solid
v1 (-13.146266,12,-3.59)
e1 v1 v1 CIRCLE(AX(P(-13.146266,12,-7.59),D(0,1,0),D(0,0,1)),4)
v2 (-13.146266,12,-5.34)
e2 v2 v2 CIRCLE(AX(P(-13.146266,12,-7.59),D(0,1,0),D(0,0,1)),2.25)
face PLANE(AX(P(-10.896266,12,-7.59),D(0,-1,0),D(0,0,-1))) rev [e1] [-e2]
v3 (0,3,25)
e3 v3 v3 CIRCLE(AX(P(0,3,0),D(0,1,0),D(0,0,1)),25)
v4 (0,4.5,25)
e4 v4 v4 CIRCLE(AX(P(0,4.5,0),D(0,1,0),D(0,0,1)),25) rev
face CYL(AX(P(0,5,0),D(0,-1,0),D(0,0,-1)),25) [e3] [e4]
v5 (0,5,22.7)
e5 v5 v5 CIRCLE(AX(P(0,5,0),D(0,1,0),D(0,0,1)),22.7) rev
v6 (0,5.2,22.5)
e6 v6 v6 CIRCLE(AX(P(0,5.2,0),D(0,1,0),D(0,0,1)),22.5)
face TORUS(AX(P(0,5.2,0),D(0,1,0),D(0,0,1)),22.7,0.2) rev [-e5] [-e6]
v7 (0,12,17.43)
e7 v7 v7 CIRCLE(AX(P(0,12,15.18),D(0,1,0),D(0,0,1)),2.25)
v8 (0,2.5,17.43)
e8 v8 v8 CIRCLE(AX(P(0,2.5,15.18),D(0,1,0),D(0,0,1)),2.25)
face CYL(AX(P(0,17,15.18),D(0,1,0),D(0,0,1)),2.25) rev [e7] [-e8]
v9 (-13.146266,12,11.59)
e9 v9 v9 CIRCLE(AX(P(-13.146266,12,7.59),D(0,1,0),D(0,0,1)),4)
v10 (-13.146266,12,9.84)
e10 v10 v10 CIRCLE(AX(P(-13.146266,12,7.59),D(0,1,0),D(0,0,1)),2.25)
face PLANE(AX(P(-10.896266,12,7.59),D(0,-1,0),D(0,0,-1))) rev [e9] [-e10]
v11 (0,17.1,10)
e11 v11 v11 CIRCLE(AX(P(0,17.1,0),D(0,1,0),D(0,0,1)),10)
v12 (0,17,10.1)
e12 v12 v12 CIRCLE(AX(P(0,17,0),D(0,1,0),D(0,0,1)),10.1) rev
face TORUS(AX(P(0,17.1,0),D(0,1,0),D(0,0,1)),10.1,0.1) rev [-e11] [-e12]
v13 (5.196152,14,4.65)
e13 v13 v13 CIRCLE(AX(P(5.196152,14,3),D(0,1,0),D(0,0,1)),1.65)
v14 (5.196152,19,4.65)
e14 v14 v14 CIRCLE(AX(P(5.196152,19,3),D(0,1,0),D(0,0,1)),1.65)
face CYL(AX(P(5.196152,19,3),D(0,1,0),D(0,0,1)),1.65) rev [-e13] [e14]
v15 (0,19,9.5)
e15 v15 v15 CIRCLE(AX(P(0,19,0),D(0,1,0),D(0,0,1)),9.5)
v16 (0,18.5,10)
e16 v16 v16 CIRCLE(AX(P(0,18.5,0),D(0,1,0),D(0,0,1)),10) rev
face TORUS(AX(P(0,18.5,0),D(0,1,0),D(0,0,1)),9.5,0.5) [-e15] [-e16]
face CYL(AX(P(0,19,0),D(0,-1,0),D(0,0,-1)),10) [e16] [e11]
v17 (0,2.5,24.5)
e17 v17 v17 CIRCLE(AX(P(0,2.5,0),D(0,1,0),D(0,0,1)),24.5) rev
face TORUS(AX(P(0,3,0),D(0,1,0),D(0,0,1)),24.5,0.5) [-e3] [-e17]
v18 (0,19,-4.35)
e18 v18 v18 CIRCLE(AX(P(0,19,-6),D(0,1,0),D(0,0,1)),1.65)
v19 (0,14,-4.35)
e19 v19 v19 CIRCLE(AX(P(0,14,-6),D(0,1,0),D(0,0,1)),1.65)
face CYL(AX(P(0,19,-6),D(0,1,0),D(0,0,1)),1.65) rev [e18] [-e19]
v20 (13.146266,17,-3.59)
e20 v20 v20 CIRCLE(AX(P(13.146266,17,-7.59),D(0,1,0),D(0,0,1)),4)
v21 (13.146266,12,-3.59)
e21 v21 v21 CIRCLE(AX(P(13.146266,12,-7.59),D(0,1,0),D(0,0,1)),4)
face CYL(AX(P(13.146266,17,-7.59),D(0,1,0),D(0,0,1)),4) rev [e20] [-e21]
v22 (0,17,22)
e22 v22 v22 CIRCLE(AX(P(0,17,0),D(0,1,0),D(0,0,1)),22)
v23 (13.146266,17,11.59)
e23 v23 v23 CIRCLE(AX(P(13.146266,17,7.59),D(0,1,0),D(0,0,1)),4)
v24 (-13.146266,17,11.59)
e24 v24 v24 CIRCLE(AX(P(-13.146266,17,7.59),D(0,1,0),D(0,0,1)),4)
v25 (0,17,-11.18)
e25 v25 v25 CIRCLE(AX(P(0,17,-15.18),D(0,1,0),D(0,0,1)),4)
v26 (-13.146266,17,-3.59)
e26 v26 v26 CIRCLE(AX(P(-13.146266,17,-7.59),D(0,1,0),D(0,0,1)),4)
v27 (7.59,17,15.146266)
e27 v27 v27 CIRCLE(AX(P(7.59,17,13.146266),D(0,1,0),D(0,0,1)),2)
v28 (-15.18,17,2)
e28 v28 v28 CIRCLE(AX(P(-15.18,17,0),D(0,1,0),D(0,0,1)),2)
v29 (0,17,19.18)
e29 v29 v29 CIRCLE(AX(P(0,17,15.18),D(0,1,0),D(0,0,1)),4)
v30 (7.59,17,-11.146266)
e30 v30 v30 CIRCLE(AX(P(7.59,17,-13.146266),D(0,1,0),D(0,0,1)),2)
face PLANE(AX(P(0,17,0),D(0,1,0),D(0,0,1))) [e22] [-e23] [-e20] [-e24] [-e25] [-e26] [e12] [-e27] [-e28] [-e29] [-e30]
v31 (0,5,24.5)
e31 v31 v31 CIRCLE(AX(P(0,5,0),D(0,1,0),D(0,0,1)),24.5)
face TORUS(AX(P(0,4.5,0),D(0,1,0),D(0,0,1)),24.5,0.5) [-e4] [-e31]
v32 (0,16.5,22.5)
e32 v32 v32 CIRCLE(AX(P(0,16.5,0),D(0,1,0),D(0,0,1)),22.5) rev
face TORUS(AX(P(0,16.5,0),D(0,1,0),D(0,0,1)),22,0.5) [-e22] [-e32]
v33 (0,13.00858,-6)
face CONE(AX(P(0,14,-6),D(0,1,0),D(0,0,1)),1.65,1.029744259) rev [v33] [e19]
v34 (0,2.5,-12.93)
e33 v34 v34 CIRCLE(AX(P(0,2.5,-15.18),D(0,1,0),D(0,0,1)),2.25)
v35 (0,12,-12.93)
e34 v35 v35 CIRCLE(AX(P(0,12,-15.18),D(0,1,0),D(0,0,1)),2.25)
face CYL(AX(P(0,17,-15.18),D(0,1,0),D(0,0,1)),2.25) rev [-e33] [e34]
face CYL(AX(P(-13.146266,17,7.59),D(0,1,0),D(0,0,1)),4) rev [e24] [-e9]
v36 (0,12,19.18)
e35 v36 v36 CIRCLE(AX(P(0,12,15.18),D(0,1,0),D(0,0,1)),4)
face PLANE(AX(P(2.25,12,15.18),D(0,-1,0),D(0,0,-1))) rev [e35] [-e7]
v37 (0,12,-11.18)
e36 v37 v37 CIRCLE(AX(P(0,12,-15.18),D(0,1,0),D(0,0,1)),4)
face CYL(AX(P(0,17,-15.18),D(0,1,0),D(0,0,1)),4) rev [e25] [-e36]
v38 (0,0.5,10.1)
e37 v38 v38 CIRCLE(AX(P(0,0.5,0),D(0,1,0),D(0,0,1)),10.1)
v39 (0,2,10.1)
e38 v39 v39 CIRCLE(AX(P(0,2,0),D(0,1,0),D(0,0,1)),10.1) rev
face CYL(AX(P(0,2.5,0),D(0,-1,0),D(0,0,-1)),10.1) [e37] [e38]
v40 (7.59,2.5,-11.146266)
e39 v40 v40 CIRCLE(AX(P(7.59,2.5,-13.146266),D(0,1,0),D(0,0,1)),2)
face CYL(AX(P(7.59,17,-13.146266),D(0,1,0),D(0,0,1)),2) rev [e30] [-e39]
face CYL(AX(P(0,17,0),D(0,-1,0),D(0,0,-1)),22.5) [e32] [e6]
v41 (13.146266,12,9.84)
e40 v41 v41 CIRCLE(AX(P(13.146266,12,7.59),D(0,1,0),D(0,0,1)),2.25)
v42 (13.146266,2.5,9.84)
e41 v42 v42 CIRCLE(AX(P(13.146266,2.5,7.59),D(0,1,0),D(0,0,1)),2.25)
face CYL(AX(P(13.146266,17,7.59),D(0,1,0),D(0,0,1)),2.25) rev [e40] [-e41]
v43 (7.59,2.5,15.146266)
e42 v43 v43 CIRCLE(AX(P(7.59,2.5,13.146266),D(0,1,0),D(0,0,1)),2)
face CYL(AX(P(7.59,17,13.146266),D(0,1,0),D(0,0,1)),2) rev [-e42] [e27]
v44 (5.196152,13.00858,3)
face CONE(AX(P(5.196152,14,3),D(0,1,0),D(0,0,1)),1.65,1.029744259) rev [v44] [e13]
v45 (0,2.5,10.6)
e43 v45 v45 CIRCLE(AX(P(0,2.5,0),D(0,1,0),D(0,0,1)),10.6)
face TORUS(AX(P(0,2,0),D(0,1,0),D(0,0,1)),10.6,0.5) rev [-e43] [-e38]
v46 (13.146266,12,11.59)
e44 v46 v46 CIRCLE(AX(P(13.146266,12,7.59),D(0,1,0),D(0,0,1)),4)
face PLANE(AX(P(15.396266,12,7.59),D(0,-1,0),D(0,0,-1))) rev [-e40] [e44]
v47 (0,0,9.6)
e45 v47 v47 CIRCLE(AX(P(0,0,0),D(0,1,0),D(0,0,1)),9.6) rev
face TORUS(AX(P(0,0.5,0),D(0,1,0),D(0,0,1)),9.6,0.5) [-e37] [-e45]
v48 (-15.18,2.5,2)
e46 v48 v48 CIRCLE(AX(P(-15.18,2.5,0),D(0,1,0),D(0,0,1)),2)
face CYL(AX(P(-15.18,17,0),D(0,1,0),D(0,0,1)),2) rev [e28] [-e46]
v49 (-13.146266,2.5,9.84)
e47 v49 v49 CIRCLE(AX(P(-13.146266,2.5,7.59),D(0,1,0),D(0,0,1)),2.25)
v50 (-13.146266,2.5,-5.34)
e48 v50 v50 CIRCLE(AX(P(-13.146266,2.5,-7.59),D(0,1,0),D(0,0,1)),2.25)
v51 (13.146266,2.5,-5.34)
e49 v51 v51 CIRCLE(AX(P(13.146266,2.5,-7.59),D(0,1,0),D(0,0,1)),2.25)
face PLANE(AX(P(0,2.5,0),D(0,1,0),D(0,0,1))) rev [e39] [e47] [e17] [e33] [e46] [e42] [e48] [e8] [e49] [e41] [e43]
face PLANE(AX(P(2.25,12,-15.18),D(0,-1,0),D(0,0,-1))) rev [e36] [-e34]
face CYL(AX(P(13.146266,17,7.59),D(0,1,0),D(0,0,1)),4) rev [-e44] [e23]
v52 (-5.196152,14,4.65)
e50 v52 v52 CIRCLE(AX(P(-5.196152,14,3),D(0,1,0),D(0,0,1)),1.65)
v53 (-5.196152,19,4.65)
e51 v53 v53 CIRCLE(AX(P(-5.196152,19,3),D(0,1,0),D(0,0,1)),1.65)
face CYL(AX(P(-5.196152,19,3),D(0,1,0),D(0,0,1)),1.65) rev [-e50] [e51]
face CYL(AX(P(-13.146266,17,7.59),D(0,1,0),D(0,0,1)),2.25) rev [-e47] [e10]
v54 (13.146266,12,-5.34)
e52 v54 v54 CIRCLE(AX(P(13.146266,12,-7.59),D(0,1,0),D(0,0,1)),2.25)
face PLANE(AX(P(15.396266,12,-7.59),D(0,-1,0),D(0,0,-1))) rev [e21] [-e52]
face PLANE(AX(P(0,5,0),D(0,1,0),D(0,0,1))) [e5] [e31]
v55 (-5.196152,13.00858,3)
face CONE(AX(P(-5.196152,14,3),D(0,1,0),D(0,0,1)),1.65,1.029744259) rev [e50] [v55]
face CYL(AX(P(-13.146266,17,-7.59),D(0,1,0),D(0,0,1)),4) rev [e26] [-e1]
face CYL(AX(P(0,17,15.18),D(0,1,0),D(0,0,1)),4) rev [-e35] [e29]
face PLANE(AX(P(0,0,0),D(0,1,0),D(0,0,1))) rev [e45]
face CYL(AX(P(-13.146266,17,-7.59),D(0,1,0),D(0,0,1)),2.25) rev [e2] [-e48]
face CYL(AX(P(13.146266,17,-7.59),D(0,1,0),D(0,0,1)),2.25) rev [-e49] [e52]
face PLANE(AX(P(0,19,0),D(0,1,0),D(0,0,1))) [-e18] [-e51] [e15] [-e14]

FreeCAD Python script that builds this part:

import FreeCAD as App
import Part
import Sketcher
Q = App.Units.Quantity


def edges_at(feature, points):
    """Names of the edges that pass closest to the given points."""
    edges = feature.Shape.Edges
    near = lambda p: min(range(len(edges)), key=lambda i: edges[i].distToShape(Part.Vertex(*p))[0])
    return sorted({f"Edge{near(p) + 1}" for p in points})

doc = App.newDocument("Part")
body = doc.addObject("PartDesign::Body", "Body")

sketch1 = body.newObject("Sketcher::SketchObject", "Sketch")
sketch1.AttachmentSupport = (doc.getObject("XZ_Plane"), [""])
sketch1.MapMode = "FlatFace"
sketch1.addGeometry(Part.Circle(App.Vector(0, 0, 0), App.Vector(0, 0, 1), 10.1), False)
sketch1.addConstraint(Sketcher.Constraint("Coincident", 0, 3, -1, 1))
sketch1.addConstraint(Sketcher.Constraint("Diameter", 0, 20.2))
pad1 = body.newObject("PartDesign::Pad", "Pad")
pad1.Profile = sketch1
pad1.Length = 2.5
pad1.Reversed = True

sketch2 = body.newObject("Sketcher::SketchObject", "Sketch001")
sketch2.AttachmentSupport = (doc.getObject("XZ_Plane"), [""])
sketch2.MapMode = "FlatFace"
sketch2.AttachmentOffset = App.Placement(App.Vector(0, 0, -2.5), App.Rotation())
sketch2.addGeometry(Part.Circle(App.Vector(0, 0, 0), App.Vector(0, 0, 1), 25), False)
sketch2.addConstraint(Sketcher.Constraint("Coincident", 0, 3, -1, 1))
sketch2.addConstraint(Sketcher.Constraint("Diameter", 0, 50.0))
pad2 = body.newObject("PartDesign::Pad", "Pad001")
pad2.Profile = sketch2
pad2.Length = 2.5
pad2.Reversed = True

sketch3 = body.newObject("Sketcher::SketchObject", "Sketch002")
sketch3.AttachmentSupport = (doc.getObject("XZ_Plane"), [""])
sketch3.MapMode = "FlatFace"
sketch3.AttachmentOffset = App.Placement(App.Vector(0, 0, -5), App.Rotation())
sketch3.addGeometry(Part.Circle(App.Vector(0, 0, 0), App.Vector(0, 0, 1), 22.5), False)
sketch3.addConstraint(Sketcher.Constraint("Coincident", 0, 3, -1, 1))
sketch3.addConstraint(Sketcher.Constraint("Diameter", 0, 45.0))
pad3 = body.newObject("PartDesign::Pad", "Pad002")
pad3.Profile = sketch3
pad3.Length = 12
pad3.Reversed = True

sketch4 = body.newObject("Sketcher::SketchObject", "Sketch003")
sketch4.AttachmentSupport = (doc.getObject("XZ_Plane"), [""])
sketch4.MapMode = "FlatFace"
sketch4.AttachmentOffset = App.Placement(App.Vector(0, 0, -17), App.Rotation())
sketch4.addGeometry(Part.Circle(App.Vector(0, 0, 0), App.Vector(0, 0, 1), 10), False)
sketch4.addConstraint(Sketcher.Constraint("Coincident", 0, 3, -1, 1))
sketch4.addConstraint(Sketcher.Constraint("Diameter", 0, 20.0))
pad4 = body.newObject("PartDesign::Pad", "Pad003")
pad4.Profile = sketch4
pad4.Length = 2
pad4.Reversed = True

sketch5 = body.newObject("Sketcher::SketchObject", "Sketch004")
sketch5.AttachmentSupport = (doc.getObject("XZ_Plane"), [""])
sketch5.MapMode = "FlatFace"
sketch5.AttachmentOffset = App.Placement(App.Vector(0, 0, -17), App.Rotation())
sketch5.addGeometry(Part.Circle(App.Vector(0, -15.18, 0), App.Vector(0, 0, 1), 2.25), False)
sketch5.addConstraint(Sketcher.Constraint("PointOnObject", 0, 3, -2))
sketch5.addConstraint(Sketcher.Constraint("Diameter", 0, 4.5))
sketch5.addConstraint(Sketcher.Constraint("DistanceY", 0, 3, -1, 1, 15.18))
doc.recompute()
hole = body.newObject("PartDesign::Hole", "Hole")
hole.Profile = sketch5
hole.ThreadType = "None"
hole.Diameter = 4.5
hole.DepthType = "ThroughAll"
hole.HoleCutType = "Counterbore"
hole.HoleCutDiameter = 8
hole.HoleCutDepth = 5
hole.Reversed = True
doc.recompute()

polarpattern = body.newObject("PartDesign::PolarPattern", "PolarPattern")
polarpattern.Originals = [hole]
polarpattern.Axis = (doc.getObject("Y_Axis"), [""])
polarpattern.Angle = 360
polarpattern.Occurrences = 6
body.Tip = polarpattern

sketch6 = body.newObject("Sketcher::SketchObject", "Sketch005")
sketch6.AttachmentSupport = (doc.getObject("YZ_Plane"), [""])
sketch6.MapMode = "FlatFace"
sketch6.addGeometry(Part.LineSegment(App.Vector(13.00858, -6, 0), App.Vector(19, -6, 0)), False)
sketch6.addGeometry(Part.LineSegment(App.Vector(19, -6, 0), App.Vector(19, -4.35, 0)), False)
sketch6.addGeometry(Part.LineSegment(App.Vector(19, -4.35, 0), App.Vector(14, -4.35, 0)), False)
sketch6.addGeometry(Part.LineSegment(App.Vector(14, -4.35, 0), App.Vector(13.00858, -6, 0)), False)
sketch6.addGeometry(Part.LineSegment(App.Vector(19, -6, 0), App.Vector(13.00858, -6, 0)), True)
sketch6.addConstraint(Sketcher.Constraint("Coincident", 0, 2, 1, 1))
sketch6.addConstraint(Sketcher.Constraint("Coincident", 1, 2, 2, 1))
sketch6.addConstraint(Sketcher.Constraint("Coincident", 2, 2, 3, 1))
sketch6.addConstraint(Sketcher.Constraint("Coincident", 3, 2, 0, 1))
sketch6.addConstraint(Sketcher.Constraint("Horizontal", 0))
sketch6.addConstraint(Sketcher.Constraint("Vertical", 1))
sketch6.addConstraint(Sketcher.Constraint("Horizontal", 2))
sketch6.addConstraint(Sketcher.Constraint("Horizontal", 4))
sketch6.addConstraint(Sketcher.Constraint("Coincident", 4, 1, 0, 2))
sketch6.addConstraint(Sketcher.Constraint("Equal", 0, 4))
sketch6.addConstraint(Sketcher.Constraint("DistanceX", 2, 2, 2, 1, 5.0))
sketch6.addConstraint(Sketcher.Constraint("Angle", 3, Q("-121 deg")))
sketch6.addConstraint(Sketcher.Constraint("DistanceX", -1, 1, 0, 2, 19.0))
sketch6.addConstraint(Sketcher.Constraint("DistanceY", 0, 2, -1, 1, 6.0))
sketch6.addConstraint(Sketcher.Constraint("DistanceY", 1, 1, 1, 2, 1.65))
groove = body.newObject("PartDesign::Groove", "Groove")
groove.Profile = sketch6
groove.ReferenceAxis = (sketch6, ["Axis0"])
groove.Angle = 360
doc.recompute()

polarpattern2 = body.newObject("PartDesign::PolarPattern", "PolarPattern001")
polarpattern2.Originals = [groove]
polarpattern2.Axis = (doc.getObject("Y_Axis"), [""])
polarpattern2.Angle = 360
polarpattern2.Occurrences = 3
body.Tip = polarpattern2
doc.recompute()

fillet = body.newObject("PartDesign::Fillet", "Fillet")
fillet.Base = (polarpattern2, edges_at(polarpattern2, [
    (-22.5, 17, 0),
    (-10.1, 0, 0),
    (-10.1, 2.5, 0),
    (-25, 2.5, 0),
    (-25, 5, 0),
]))
fillet.Radius = 0.5
doc.recompute()

fillet2 = body.newObject("PartDesign::Fillet", "Fillet001")
fillet2.Base = (fillet, edges_at(fillet, [(-22.5, 5, 0)]))
fillet2.Radius = 0.2
doc.recompute()

fillet3 = body.newObject("PartDesign::Fillet", "Fillet002")
fillet3.Base = (fillet2, edges_at(fillet2, [(-10, 17, 0)]))
fillet3.Radius = 0.1
doc.recompute()

fillet4 = body.newObject("PartDesign::Fillet", "Fillet003")
fillet4.Base = (fillet3, edges_at(fillet3, [(-10, 19, 0)]))
fillet4.Radius = 0.5

sketch7 = body.newObject("Sketcher::SketchObject", "Sketch006")
sketch7.AttachmentSupport = (doc.getObject("XZ_Plane"), [""])
sketch7.MapMode = "FlatFace"
sketch7.AttachmentOffset = App.Placement(App.Vector(0, 0, -17), App.Rotation())
sketch7.addGeometry(Part.Circle(App.Vector(-15.18, 0, 0), App.Vector(0, 0, 1), 2), False)
sketch7.addConstraint(Sketcher.Constraint("PointOnObject", 0, 3, -1))
sketch7.addConstraint(Sketcher.Constraint("Diameter", 0, 4.0))
sketch7.addConstraint(Sketcher.Constraint("DistanceX", 0, 3, -1, 1, 15.18))
doc.recompute()
hole2 = body.newObject("PartDesign::Hole", "Hole001")
hole2.Profile = sketch7
hole2.ThreadType = "None"
hole2.Diameter = 4
hole2.DepthType = "ThroughAll"
hole2.Reversed = True
doc.recompute()

polarpattern3 = body.newObject("PartDesign::PolarPattern", "PolarPattern002")
polarpattern3.Originals = [hole2]
polarpattern3.Axis = (doc.getObject("Y_Axis"), [""])
polarpattern3.Angle = 360
polarpattern3.Occurrences = 3
body.Tip = polarpattern3

doc.recompute()
